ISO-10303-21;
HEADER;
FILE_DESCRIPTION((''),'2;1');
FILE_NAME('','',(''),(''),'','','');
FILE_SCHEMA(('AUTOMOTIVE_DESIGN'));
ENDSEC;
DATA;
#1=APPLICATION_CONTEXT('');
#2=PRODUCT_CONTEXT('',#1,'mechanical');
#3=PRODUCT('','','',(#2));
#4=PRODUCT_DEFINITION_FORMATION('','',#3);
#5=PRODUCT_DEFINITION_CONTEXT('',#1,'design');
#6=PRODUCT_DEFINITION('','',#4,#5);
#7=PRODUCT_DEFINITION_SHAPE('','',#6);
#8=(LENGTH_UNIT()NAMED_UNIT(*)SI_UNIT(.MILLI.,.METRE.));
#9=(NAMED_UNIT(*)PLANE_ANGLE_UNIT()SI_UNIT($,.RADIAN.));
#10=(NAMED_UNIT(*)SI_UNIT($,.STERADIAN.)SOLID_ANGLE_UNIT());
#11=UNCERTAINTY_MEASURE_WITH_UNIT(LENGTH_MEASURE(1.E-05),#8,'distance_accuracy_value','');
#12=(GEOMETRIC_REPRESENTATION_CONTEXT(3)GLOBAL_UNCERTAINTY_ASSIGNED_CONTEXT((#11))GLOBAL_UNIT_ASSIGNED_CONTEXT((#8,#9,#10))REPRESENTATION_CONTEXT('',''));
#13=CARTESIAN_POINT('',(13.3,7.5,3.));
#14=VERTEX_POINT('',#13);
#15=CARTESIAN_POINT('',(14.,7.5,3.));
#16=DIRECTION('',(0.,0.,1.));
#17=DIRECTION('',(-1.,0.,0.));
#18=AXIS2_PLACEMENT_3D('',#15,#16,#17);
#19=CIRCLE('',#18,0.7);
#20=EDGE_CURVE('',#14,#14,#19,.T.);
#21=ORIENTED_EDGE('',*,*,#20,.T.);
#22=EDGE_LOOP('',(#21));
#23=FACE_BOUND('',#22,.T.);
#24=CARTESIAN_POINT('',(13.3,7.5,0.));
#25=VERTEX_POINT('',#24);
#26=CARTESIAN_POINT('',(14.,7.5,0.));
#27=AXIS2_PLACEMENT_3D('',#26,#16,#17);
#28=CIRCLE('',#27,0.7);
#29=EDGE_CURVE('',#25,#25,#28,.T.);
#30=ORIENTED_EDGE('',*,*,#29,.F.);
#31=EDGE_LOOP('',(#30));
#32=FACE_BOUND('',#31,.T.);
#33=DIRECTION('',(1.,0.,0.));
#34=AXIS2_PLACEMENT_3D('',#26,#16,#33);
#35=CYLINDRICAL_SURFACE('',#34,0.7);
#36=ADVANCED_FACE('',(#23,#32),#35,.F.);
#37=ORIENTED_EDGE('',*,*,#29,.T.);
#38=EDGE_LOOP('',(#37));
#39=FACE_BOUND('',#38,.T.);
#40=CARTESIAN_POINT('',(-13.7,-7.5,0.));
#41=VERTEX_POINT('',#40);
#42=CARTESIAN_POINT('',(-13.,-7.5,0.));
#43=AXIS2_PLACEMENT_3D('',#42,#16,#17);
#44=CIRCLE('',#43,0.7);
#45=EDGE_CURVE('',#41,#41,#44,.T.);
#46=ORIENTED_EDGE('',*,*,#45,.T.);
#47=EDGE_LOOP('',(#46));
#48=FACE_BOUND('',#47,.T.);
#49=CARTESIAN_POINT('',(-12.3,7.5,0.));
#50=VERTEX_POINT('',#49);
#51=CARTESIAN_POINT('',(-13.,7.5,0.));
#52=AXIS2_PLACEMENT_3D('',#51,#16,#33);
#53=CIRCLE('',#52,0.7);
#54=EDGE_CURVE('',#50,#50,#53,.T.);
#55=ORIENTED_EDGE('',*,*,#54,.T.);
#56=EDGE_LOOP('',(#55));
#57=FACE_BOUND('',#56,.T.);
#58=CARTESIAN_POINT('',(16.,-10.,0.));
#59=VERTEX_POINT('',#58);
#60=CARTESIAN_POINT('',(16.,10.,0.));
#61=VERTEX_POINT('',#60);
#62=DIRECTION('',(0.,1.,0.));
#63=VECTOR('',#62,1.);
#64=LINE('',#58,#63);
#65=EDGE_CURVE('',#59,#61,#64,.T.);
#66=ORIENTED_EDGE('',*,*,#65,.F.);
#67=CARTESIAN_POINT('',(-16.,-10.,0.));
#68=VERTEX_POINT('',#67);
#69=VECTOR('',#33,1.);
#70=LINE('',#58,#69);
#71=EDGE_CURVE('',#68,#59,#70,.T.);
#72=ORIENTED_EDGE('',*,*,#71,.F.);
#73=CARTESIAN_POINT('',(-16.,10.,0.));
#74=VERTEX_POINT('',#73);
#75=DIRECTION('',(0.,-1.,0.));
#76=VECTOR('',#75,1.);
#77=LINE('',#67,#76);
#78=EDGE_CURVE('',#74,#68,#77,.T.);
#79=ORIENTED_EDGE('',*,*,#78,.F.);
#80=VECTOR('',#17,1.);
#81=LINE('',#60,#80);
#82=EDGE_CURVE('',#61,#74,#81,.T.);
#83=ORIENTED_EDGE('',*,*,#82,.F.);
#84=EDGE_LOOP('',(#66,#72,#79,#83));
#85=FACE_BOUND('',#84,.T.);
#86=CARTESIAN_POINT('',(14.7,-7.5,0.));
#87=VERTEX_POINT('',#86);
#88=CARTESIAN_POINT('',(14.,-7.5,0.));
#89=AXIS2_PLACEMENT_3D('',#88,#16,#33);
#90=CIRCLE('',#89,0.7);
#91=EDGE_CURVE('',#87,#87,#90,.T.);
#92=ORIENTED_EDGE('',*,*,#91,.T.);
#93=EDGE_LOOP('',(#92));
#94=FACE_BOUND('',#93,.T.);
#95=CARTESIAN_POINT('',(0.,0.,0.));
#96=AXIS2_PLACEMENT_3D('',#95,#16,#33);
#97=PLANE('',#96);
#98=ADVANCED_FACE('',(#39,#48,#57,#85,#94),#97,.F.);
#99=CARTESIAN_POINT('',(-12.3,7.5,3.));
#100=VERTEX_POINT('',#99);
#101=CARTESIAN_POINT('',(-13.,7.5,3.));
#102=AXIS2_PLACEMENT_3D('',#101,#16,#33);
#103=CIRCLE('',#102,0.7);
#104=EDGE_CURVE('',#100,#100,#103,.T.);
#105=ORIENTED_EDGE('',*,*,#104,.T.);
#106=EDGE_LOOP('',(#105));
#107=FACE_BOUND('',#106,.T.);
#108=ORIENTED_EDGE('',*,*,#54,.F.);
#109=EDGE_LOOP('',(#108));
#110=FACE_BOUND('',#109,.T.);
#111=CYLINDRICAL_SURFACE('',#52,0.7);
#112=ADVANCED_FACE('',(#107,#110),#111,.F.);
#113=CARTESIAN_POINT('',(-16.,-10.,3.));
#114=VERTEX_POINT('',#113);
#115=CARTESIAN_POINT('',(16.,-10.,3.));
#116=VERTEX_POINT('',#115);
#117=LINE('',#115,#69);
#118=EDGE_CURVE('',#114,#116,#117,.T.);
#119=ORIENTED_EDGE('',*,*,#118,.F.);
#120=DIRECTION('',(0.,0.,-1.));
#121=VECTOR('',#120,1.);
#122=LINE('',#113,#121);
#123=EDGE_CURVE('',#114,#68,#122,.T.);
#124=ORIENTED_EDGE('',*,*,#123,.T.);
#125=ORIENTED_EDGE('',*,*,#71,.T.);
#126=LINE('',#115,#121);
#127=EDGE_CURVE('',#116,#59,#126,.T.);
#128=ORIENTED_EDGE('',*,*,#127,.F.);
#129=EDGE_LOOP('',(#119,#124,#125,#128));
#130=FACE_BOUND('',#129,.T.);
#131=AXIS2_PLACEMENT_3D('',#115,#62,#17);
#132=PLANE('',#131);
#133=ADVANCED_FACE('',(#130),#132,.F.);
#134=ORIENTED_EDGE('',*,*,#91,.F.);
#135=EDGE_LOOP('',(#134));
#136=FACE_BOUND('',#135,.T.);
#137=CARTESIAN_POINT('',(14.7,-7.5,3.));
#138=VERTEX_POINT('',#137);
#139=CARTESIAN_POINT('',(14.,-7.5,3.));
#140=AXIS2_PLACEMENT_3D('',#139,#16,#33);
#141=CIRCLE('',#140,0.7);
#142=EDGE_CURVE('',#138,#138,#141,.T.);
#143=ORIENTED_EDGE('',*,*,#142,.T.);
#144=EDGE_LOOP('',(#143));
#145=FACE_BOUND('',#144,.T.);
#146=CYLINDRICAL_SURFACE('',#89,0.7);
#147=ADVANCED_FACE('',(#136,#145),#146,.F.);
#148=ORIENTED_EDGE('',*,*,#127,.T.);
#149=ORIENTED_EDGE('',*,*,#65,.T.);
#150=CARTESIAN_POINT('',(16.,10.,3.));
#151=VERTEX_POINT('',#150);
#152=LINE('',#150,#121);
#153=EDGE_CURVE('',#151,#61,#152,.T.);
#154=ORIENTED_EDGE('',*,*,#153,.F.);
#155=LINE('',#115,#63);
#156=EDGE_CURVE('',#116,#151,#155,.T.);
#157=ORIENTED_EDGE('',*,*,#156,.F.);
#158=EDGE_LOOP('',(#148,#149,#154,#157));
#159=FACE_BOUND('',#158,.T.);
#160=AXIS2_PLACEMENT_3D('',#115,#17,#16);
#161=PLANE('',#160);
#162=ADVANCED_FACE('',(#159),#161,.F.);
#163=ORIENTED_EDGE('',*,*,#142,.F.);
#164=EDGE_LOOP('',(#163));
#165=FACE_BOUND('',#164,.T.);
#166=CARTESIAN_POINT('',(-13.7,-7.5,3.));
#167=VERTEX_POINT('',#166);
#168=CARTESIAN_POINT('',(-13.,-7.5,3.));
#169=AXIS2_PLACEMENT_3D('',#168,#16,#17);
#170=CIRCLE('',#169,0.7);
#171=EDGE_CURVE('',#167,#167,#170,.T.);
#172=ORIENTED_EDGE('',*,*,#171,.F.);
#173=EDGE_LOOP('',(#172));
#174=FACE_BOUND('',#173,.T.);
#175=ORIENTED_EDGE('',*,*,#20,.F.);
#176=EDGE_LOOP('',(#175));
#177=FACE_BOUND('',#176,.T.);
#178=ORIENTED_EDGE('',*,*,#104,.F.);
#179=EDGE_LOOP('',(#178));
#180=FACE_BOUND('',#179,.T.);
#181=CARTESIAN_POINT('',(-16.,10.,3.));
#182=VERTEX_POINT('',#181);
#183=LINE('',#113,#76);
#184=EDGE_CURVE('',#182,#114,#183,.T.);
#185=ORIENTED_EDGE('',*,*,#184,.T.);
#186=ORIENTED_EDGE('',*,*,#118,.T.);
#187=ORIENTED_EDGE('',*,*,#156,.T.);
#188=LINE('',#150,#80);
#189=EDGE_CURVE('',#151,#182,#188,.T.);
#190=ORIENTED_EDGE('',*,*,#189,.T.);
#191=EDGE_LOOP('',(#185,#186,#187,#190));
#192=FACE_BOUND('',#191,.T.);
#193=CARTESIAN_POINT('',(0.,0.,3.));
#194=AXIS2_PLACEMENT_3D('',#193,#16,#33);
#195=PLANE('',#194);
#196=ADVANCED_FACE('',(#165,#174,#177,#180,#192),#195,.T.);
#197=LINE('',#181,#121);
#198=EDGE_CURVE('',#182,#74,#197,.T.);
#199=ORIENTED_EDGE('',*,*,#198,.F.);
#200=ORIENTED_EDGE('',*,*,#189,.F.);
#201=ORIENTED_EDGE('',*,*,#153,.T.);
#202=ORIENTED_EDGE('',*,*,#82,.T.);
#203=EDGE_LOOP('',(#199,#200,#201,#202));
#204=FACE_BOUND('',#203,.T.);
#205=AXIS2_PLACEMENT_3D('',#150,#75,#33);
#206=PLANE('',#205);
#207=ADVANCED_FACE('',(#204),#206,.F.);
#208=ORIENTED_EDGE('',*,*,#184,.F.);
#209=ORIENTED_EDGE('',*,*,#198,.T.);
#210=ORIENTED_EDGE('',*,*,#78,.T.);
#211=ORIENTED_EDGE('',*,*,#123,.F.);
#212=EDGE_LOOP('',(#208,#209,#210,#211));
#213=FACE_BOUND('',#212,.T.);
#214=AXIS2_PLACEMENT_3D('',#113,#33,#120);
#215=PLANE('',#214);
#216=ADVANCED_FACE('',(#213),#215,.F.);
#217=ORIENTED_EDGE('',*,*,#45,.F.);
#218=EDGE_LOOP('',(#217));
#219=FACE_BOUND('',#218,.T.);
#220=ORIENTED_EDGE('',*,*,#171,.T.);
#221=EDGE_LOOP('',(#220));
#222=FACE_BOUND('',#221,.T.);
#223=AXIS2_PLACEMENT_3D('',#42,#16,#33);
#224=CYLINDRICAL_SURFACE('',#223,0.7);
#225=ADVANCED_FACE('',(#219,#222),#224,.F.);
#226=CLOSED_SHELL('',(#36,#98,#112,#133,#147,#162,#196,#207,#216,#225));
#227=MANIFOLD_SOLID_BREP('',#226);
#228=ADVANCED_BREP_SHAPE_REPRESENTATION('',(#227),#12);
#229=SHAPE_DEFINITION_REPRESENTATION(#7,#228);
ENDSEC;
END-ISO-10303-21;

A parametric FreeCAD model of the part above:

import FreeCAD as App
import Part
import Sketcher

doc = App.newDocument("Part")
body = doc.addObject("PartDesign::Body", "Body")

# Sketch on XY plane
sketch1 = body.newObject("Sketcher::SketchObject", "Sketch")
sketch1.AttachmentSupport = (doc.getObject("XY_Plane"), [""])
sketch1.MapMode = "FlatFace"
sketch1.addGeometry([
    Part.LineSegment(App.Vector(-16, 10, 0), App.Vector(-16, -10, 0)),
    Part.LineSegment(App.Vector(-16, -10, 0), App.Vector(16, -10, 0)),
    Part.LineSegment(App.Vector(16, -10, 0), App.Vector(16, 10, 0)),
    Part.LineSegment(App.Vector(16, 10, 0), App.Vector(-16, 10, 0)),
], False)
sketch1.addConstraint([
    Sketcher.Constraint("Coincident", 0, 2, 1, 1),
    Sketcher.Constraint("Coincident", 1, 2, 2, 1),
    Sketcher.Constraint("Coincident", 2, 2, 3, 1),
    Sketcher.Constraint("Coincident", 3, 2, 0, 1),
    Sketcher.Constraint("Vertical", 0),
    Sketcher.Constraint("Horizontal", 1),
    Sketcher.Constraint("Vertical", 2),
    Sketcher.Constraint("Horizontal", 3),
    Sketcher.Constraint("Symmetric", 0, 2, 2, 2, -1, 1),
    Sketcher.Constraint("DistanceX", 1, 1, 1, 2, 32.0),
    Sketcher.Constraint("DistanceY", 0, 2, 0, 1, 20.0),
])
pad1 = body.newObject("PartDesign::Pad", "Pad")
pad1.Profile = sketch1
pad1.Length = 3

# Sketch on XY plane
sketch2 = body.newObject("Sketcher::SketchObject", "Sketch001")
sketch2.AttachmentSupport = (doc.getObject("XY_Plane"), [""])
sketch2.MapMode = "FlatFace"
sketch2.AttachmentOffset = App.Placement(App.Vector(0, 0, 3), App.Rotation())
sketch2.addGeometry([
    Part.Circle(App.Vector(-13, 7.5, 0), App.Vector(0, 0, 1), 0.7),
    Part.Circle(App.Vector(14, 7.5, 0), App.Vector(0, 0, 1), 0.7),
    Part.Circle(App.Vector(14, -7.5, 0), App.Vector(0, 0, 1), 0.7),
    Part.Circle(App.Vector(-13, -7.5, 0), App.Vector(0, 0, 1), 0.7),
], False)
sketch2.addConstraint([
    Sketcher.Constraint("Equal", 0, 1),
    Sketcher.Constraint("Equal", 1, 2),
    Sketcher.Constraint("Equal", 2, 3),
    Sketcher.Constraint("Symmetric", 1, 3, 2, 3, -1),
    Sketcher.Constraint("Symmetric", 0, 3, 3, 3, -1),
    Sketcher.Constraint("Horizontal", 0, 3, 1, 3),
    Sketcher.Constraint("Diameter", 0, 1.4),
    Sketcher.Constraint("DistanceX", 0, 3, -1, 1, 13.0),
    Sketcher.Constraint("DistanceX", -1, 1, 1, 3, 14.0),
    Sketcher.Constraint("DistanceY", 2, 3, 1, 3, 15.0),
])
pocket1 = body.newObject("PartDesign::Pocket", "Pocket")
pocket1.Profile = sketch2
pocket1.Type = "ThroughAll"

doc.recompute()
